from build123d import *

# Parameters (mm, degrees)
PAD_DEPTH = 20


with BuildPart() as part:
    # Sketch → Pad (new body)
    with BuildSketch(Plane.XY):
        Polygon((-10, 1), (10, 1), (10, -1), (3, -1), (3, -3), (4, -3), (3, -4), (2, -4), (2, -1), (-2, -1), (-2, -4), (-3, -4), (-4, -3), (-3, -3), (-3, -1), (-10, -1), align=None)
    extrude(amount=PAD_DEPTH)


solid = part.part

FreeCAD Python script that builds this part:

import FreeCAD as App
import Part
import Sketcher
Q = App.Units.Quantity


def add_polygon(sketch, points):
    """Adds a closed chain of lines whose ends are joined by coincident constraints."""
    first, n = sketch.GeometryCount, len(points)
    for a, b in zip(points, points[1:] + points[:1]):
        sketch.addGeometry(Part.LineSegment(App.Vector(*a, 0), App.Vector(*b, 0)), False)
    for i in range(n):
        sketch.addConstraint(Sketcher.Constraint("Coincident", first + i, 2, first + (i + 1) % n, 1))

doc = App.newDocument("Part")
body = doc.addObject("PartDesign::Body", "Body")

# Sketch on XY plane
sketch1 = body.newObject("Sketcher::SketchObject", "Sketch")
sketch1.AttachmentSupport = (doc.getObject("XY_Plane"), [""])
sketch1.MapMode = "FlatFace"
add_polygon(sketch1, [(10, 1), (-10, 1), (-10, -1), (-3, -1), (-3, -3), (-4, -3), (-3, -4), (-2, -4), (-2, -1), (2, -1), (2, -4), (3, -4), (4, -3), (3, -3), (3, -1), (10, -1)])  # lines 0-15
sketch1.addConstraint([
    Sketcher.Constraint("Horizontal", 0),
    Sketcher.Constraint("Vertical", 1),
    Sketcher.Constraint("Horizontal", 2),
    Sketcher.Constraint("Vertical", 3),
    Sketcher.Constraint("Horizontal", 4),
    Sketcher.Constraint("Horizontal", 6),
    Sketcher.Constraint("Vertical", 7),
    Sketcher.Constraint("Horizontal", 8),
    Sketcher.Constraint("Vertical", 9),
    Sketcher.Constraint("Horizontal", 10),
    Sketcher.Constraint("Horizontal", 12),
    Sketcher.Constraint("Vertical", 13),
    Sketcher.Constraint("Horizontal", 14),
    Sketcher.Constraint("Vertical", 15),
    Sketcher.Constraint("Symmetric", 0, 2, 14, 2, -1, 1),
    Sketcher.Constraint("Symmetric", 6, 2, 9, 2, -2),
    Sketcher.Constraint("Symmetric", 4, 2, 11, 2, -2),
    Sketcher.Constraint("Symmetric", 2, 2, 13, 2, -2),
    Sketcher.Constraint("Perpendicular", 5, 11),
    Sketcher.Constraint("Horizontal", 2, 2, 7, 2),
    Sketcher.Constraint("Vertical", 3, 2, 5, 2),
    Sketcher.Constraint("Vertical", 10, 2, 12, 2),
    Sketcher.Constraint("Equal", 4, 6),
    Sketcher.Constraint("Equal", 1, 3),
    Sketcher.Constraint("DistanceX", 0, 2, 0, 1, Q("20 mm")),
    Sketcher.Constraint("DistanceX", 2, 1, 2, 2, Q("7 mm")),
    Sketcher.Constraint("DistanceX", 4, 2, 4, 1, Q("1 mm")),
    Sketcher.Constraint("DistanceY", 1, 2, 1, 1, Q("2 mm")),
])
pad1 = body.newObject("PartDesign::Pad", "Pad")
pad1.Profile = sketch1
pad1.Length = 20

doc.recompute()
